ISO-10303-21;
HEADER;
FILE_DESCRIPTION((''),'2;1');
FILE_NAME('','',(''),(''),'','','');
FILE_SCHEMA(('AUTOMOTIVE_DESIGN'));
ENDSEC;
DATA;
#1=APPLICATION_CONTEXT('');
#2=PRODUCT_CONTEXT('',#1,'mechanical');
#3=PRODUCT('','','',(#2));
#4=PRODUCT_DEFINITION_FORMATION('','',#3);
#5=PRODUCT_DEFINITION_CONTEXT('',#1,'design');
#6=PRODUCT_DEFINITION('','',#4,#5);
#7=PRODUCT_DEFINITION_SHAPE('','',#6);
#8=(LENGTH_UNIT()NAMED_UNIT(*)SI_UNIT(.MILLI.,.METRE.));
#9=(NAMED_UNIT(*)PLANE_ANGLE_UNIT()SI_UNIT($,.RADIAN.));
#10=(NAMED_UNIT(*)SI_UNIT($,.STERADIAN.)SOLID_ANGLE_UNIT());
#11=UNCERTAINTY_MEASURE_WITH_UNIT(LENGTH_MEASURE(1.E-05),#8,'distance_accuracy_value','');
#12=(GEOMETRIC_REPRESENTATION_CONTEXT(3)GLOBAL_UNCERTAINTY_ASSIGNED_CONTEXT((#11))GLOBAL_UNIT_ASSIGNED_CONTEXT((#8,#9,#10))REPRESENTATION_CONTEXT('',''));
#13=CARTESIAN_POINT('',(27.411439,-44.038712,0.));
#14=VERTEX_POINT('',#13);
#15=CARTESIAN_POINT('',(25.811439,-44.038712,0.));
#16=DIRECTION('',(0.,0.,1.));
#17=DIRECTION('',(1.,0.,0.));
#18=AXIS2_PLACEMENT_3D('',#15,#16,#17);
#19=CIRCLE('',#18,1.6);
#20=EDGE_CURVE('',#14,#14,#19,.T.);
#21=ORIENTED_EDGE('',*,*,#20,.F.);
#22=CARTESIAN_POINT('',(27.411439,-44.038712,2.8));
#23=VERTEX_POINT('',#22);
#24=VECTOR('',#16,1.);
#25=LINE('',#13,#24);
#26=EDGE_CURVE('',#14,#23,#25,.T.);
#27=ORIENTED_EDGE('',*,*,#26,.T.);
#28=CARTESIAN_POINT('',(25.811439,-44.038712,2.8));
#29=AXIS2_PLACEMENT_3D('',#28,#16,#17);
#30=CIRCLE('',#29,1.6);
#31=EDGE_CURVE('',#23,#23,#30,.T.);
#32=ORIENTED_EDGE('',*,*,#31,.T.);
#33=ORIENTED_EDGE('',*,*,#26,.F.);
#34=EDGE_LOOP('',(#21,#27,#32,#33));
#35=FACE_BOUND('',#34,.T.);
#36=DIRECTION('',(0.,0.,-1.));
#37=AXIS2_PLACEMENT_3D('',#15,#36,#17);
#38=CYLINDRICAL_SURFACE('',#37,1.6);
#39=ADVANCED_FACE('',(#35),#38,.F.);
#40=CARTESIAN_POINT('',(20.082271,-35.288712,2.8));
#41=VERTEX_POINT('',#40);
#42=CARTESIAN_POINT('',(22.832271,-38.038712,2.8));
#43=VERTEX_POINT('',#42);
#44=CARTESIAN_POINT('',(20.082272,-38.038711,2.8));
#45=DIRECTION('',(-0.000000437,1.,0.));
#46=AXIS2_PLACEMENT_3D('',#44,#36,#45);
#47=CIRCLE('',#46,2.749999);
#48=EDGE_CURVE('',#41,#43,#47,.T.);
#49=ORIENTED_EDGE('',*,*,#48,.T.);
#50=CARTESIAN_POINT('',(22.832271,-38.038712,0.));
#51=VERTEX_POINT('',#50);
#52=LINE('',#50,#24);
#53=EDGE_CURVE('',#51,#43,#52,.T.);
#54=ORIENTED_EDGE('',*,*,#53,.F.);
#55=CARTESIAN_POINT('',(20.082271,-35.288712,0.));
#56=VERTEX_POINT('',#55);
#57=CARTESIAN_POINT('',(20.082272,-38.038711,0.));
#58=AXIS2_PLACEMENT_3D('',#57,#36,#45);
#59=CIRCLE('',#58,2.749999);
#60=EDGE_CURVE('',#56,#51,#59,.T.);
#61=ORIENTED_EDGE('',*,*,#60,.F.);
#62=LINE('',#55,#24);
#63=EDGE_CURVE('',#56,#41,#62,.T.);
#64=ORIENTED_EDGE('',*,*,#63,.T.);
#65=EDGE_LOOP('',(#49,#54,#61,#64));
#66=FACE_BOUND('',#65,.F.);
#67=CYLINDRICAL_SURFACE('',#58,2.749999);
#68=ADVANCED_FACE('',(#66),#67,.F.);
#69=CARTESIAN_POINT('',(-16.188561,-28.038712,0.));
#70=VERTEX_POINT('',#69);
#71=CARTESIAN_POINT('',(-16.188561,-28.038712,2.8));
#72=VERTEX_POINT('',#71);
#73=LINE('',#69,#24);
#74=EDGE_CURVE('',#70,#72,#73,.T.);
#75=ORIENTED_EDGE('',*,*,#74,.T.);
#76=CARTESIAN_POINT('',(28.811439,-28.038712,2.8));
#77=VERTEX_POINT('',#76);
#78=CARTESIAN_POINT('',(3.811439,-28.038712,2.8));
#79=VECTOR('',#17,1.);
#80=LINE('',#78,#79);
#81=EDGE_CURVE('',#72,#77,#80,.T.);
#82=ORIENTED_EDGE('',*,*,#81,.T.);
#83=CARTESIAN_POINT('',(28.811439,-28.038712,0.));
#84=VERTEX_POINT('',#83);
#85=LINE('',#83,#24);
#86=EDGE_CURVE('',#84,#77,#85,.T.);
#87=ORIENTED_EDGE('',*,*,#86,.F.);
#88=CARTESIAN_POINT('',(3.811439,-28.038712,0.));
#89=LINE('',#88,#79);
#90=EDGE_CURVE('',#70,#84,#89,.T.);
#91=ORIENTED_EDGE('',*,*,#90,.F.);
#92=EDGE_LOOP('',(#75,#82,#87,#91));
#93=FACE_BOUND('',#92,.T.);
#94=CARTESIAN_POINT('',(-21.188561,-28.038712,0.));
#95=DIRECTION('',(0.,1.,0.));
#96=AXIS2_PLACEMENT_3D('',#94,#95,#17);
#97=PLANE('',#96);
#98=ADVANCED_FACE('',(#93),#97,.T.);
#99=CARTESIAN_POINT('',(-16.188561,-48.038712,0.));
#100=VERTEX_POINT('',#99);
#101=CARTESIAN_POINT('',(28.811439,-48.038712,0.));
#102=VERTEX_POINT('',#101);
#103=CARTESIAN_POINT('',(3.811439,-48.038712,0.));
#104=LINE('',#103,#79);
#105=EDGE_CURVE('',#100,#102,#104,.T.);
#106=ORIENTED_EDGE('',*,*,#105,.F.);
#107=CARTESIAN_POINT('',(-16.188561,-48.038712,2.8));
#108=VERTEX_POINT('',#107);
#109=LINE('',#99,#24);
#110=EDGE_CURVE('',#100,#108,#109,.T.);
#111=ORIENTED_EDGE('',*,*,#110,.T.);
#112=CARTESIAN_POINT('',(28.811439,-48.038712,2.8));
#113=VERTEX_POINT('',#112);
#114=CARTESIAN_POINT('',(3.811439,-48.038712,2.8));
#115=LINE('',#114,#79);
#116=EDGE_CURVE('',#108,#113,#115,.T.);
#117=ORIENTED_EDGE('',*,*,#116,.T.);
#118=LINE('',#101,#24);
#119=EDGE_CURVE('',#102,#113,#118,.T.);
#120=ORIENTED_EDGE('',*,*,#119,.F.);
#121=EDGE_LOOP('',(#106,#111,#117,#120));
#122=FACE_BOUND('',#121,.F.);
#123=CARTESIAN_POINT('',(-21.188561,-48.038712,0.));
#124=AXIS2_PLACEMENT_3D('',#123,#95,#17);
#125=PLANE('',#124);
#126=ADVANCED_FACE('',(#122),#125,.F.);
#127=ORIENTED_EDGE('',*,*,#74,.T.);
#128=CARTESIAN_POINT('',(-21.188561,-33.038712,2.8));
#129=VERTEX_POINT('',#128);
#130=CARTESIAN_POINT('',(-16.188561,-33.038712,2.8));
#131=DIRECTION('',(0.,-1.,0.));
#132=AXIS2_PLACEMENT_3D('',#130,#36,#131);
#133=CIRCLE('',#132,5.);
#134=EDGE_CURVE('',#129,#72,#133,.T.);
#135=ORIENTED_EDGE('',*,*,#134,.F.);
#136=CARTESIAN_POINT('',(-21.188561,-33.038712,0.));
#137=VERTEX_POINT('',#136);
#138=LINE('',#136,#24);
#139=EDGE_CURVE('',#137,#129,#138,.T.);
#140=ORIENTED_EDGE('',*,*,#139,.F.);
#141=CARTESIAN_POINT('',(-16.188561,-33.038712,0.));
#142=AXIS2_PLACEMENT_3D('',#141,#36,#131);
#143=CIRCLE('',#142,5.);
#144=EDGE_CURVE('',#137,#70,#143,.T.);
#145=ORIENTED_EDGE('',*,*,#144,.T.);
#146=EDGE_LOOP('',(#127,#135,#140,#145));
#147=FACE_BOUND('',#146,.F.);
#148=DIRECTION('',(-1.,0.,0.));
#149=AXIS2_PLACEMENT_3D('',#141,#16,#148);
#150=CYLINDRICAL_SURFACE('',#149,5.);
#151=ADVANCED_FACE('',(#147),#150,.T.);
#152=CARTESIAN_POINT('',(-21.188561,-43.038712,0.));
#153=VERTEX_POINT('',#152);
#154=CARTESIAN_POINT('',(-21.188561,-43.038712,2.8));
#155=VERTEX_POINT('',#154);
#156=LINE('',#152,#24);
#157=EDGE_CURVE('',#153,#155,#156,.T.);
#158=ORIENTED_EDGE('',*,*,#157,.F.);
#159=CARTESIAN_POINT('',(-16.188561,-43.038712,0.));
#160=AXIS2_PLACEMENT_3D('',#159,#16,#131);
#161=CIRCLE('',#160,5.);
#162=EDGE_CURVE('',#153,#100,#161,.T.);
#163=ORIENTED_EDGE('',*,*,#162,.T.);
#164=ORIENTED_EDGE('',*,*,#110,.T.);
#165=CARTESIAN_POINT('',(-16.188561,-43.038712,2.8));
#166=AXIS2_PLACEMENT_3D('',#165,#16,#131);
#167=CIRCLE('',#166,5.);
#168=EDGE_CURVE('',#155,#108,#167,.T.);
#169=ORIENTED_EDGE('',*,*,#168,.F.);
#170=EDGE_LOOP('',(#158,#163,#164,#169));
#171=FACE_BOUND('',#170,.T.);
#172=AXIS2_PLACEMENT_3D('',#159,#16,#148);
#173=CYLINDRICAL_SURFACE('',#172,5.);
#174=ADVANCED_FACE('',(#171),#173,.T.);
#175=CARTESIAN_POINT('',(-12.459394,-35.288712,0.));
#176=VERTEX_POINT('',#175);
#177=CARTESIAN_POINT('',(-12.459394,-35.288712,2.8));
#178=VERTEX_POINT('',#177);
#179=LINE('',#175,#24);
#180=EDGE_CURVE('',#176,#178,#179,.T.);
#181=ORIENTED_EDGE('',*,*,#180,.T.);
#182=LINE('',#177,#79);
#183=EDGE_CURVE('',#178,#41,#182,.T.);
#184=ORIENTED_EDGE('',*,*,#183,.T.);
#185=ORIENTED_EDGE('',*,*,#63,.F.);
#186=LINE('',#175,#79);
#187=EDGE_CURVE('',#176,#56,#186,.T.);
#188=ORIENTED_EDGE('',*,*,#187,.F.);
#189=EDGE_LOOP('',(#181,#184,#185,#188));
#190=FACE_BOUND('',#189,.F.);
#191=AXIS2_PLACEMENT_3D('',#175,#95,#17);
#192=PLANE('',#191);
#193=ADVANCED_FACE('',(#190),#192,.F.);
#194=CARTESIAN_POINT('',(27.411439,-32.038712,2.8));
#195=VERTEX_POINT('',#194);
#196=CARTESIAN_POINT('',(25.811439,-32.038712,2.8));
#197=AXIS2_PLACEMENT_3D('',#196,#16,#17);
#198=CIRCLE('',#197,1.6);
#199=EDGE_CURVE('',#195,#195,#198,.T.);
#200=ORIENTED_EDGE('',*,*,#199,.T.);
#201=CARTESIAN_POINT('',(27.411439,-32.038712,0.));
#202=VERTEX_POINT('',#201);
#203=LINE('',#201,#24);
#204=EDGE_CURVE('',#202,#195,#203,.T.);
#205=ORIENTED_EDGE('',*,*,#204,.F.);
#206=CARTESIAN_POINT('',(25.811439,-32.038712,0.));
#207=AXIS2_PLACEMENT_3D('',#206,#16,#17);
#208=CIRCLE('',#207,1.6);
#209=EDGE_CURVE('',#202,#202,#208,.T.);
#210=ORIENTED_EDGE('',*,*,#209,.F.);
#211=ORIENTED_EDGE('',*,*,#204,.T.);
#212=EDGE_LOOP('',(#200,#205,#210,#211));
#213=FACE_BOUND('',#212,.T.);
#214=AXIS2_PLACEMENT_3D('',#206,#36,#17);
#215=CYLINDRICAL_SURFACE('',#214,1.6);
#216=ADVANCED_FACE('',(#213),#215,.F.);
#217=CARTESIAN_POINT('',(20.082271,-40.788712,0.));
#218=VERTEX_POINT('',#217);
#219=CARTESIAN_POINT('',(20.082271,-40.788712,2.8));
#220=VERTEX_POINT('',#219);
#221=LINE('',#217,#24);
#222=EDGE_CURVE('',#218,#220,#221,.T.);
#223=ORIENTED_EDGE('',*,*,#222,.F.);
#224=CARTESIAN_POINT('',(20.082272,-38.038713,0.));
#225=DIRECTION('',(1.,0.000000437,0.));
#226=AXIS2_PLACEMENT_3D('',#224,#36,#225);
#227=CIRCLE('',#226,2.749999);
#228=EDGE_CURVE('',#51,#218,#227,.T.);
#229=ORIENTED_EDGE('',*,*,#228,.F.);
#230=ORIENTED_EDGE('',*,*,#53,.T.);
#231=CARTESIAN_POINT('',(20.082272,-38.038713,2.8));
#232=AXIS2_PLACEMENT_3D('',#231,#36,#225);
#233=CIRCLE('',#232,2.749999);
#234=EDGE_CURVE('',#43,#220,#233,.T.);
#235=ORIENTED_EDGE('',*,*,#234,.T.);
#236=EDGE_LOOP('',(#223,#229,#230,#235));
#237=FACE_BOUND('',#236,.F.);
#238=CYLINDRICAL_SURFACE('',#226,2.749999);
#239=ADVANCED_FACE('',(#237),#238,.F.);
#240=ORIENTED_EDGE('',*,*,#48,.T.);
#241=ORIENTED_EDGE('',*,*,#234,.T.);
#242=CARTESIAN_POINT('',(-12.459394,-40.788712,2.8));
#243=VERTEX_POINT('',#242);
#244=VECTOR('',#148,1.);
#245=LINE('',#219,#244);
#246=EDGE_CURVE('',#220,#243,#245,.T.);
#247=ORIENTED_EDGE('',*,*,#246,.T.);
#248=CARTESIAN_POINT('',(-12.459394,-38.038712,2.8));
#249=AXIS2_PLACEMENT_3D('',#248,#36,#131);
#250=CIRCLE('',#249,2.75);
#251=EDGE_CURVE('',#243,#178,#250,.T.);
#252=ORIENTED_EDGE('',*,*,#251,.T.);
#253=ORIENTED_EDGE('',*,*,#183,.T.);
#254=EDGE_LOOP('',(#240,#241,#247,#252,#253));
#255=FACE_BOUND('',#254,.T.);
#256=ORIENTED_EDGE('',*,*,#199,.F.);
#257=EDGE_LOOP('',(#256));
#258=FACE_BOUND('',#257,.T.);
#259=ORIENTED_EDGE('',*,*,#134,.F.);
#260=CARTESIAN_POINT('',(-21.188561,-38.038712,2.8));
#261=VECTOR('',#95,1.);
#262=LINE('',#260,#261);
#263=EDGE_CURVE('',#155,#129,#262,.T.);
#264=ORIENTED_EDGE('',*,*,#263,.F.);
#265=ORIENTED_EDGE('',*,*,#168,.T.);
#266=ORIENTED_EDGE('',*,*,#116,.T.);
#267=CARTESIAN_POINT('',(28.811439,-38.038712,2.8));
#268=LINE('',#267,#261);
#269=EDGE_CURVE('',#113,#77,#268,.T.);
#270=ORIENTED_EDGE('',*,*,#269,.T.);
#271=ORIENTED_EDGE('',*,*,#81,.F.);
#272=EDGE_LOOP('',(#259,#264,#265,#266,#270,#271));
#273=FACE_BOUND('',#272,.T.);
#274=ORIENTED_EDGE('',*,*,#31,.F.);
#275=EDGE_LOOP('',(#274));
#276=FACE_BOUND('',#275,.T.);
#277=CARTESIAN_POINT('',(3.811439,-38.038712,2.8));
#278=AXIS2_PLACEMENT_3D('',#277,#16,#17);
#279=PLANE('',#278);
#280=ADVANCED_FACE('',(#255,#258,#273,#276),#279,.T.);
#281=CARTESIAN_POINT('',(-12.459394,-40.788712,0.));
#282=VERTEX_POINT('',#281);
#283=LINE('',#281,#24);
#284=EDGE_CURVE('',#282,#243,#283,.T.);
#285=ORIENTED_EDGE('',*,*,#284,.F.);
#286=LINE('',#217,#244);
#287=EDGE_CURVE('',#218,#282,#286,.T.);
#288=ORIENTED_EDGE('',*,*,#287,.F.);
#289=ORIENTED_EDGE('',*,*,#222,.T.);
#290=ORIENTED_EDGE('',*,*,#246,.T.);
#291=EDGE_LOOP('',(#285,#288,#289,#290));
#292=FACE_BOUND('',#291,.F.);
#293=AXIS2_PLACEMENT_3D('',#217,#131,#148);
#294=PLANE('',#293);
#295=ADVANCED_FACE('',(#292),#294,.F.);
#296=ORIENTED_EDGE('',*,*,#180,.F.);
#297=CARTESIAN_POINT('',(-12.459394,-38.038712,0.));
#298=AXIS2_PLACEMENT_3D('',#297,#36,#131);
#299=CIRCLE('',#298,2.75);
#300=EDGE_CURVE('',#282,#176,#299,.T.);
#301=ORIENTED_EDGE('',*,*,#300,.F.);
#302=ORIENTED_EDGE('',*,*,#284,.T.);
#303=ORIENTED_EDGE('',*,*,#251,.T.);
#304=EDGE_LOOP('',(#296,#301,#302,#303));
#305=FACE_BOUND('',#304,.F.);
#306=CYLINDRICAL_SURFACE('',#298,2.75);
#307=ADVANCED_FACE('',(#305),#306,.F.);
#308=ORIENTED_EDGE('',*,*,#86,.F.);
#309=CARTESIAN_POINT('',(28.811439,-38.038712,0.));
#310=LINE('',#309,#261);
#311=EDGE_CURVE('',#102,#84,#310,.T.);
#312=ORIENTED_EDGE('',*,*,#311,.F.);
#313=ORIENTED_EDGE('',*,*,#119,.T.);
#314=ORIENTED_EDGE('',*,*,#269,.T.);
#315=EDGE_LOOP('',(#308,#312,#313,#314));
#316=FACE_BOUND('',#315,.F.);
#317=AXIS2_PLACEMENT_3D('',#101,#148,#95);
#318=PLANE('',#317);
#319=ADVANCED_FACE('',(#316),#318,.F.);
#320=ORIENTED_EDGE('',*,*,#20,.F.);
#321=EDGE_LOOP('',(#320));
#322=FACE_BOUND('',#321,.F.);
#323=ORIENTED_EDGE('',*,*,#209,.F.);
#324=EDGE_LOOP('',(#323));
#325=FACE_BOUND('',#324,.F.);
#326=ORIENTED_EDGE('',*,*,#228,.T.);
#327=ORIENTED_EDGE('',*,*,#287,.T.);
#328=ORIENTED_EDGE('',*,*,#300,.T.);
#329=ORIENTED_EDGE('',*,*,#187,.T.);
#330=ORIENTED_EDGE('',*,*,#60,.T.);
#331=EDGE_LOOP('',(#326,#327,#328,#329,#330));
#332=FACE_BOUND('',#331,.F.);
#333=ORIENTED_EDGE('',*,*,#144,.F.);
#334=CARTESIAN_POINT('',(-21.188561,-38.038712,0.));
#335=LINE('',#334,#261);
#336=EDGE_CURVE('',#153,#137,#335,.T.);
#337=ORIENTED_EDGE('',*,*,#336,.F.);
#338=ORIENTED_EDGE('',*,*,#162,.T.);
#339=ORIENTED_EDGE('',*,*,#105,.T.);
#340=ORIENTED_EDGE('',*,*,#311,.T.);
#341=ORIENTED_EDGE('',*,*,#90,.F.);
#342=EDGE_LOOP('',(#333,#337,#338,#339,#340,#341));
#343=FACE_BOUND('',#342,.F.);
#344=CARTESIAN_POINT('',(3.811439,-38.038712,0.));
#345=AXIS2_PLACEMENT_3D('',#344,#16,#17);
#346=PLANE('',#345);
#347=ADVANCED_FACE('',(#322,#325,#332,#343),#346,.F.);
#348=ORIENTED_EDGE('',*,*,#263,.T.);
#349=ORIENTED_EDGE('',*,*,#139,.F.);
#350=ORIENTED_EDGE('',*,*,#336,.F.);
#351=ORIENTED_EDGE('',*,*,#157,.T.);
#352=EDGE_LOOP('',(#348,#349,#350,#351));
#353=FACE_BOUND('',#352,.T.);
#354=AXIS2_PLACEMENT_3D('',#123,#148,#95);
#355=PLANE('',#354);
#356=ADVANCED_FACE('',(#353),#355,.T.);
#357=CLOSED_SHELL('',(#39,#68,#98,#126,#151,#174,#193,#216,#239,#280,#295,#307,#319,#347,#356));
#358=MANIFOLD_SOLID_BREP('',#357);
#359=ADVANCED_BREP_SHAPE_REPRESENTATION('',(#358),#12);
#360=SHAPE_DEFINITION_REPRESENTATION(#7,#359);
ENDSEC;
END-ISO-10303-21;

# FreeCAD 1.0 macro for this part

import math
import FreeCAD as App
import Part
import Sketcher
from FreeCAD import Vector


def edges_at(feature, points):
    """Names of the edges that pass closest to the given points."""
    edges = feature.Shape.Edges
    near = lambda p: min(range(len(edges)), key=lambda i: edges[i].distToShape(Part.Vertex(*p))[0])
    return sorted({f"Edge{near(p) + 1}" for p in points})

doc = App.newDocument("Part")
body = doc.addObject("PartDesign::Body", "Body")

sketch1 = body.newObject("Sketcher::SketchObject", "Sketch")
sketch1.AttachmentSupport = (doc.getObject("XY_Plane"), [""])
sketch1.MapMode = "FlatFace"
sketch1.addGeometry([
    Part.LineSegment(Vector(-21.2, -28, 0), Vector(-21.2, -48, 0)),
    Part.LineSegment(Vector(-21.2, -48, 0), Vector(28.8, -48, 0)),
    Part.LineSegment(Vector(28.8, -48, 0), Vector(28.8, -28, 0)),
    Part.LineSegment(Vector(28.8, -28, 0), Vector(-21.2, -28, 0)),
    Part.Circle(Vector(25.8, -44, 0), Vector(0, 0, 1), 1.6),
    Part.LineSegment(Vector(20.1, -40.8, 0), Vector(-12.5, -40.8, 0)),
    Part.ArcOfCircle(Part.Circle(Vector(-12.5, -38, 0), Vector(0, 0, 1), 2.8), math.radians(90), math.radians(270)),
    Part.LineSegment(Vector(-12.5, -35.3, 0), Vector(20.1, -35.3, 0)),
    Part.ArcOfCircle(Part.Circle(Vector(20.1, -38, 0), Vector(0, 0, 1), 2.7), math.radians(0), math.radians(90)),
    Part.ArcOfCircle(Part.Circle(Vector(20.1, -38, 0), Vector(0, 0, 1), 2.7), math.radians(-90), math.radians(0)),
    Part.Circle(Vector(25.8, -32, 0), Vector(0, 0, 1), 1.6),
], False)
sketch1.addConstraint([
    Sketcher.Constraint("Coincident", 0, 2, 1, 1),
    Sketcher.Constraint("Coincident", 1, 2, 2, 1),
    Sketcher.Constraint("Coincident", 2, 2, 3, 1),
    Sketcher.Constraint("Coincident", 3, 2, 0, 1),
    Sketcher.Constraint("Tangent", 5, 2, 6, 2),
    Sketcher.Constraint("Tangent", 6, 1, 7, 1),
    Sketcher.Constraint("Tangent", 7, 2, 8, 2),
    Sketcher.Constraint("Tangent", 8, 1, 9, 2),
    Sketcher.Constraint("Tangent", 9, 1, 5, 1),
    Sketcher.Constraint("Vertical", 0),
    Sketcher.Constraint("Horizontal", 1),
    Sketcher.Constraint("Vertical", 2),
    Sketcher.Constraint("Horizontal", 3),
    Sketcher.Constraint("Horizontal", 5),
    Sketcher.Constraint("Horizontal", 7),
    Sketcher.Constraint("Equal", 6, 8),
    Sketcher.Constraint("Equal", 4, 10),
    Sketcher.Constraint("Horizontal", 9, 3, 8, 1),
    Sketcher.Constraint("Vertical", 4, 3, 10, 3),
    Sketcher.Constraint("Diameter", 4, 3.2),
    Sketcher.Constraint("DistanceX", 1, 1, 1, 2, 50.0),
    Sketcher.Constraint("DistanceY", 0, 2, 0, 1, 20.0),
    Sketcher.Constraint("Radius", 6, 2.75),
    Sketcher.Constraint("DistanceY", 4, 3, 6, 3, 6.0),
    Sketcher.Constraint("DistanceY", 8, 3, 10, 3, 5.999999),
    Sketcher.Constraint("DistanceY", 0, 2, 6, 3, 10.0),
    Sketcher.Constraint("DistanceX", 0, 2, 4, 3, 47.0),
    Sketcher.Constraint("DistanceX", 5, 2, 5, 1, 32.541665),
    Sketcher.Constraint("DistanceX", -1, 1, 4, 3, 25.811439),
    Sketcher.Constraint("DistanceY", 4, 3, -1, 1, 44.038712),
    Sketcher.Constraint("DistanceX", -1, 1, 7, 2, 20.082271),
])
pad1 = body.newObject("PartDesign::Pad", "Pad")
pad1.Profile = sketch1
pad1.Length = 2.8
doc.recompute()

fillet = body.newObject("PartDesign::Fillet", "Fillet")
fillet.Base = (pad1, edges_at(pad1, [(-21.189, -48.039, 1.4), (-21.189, -28.039, 1.4)]))
fillet.Radius = 5

doc.recompute()
